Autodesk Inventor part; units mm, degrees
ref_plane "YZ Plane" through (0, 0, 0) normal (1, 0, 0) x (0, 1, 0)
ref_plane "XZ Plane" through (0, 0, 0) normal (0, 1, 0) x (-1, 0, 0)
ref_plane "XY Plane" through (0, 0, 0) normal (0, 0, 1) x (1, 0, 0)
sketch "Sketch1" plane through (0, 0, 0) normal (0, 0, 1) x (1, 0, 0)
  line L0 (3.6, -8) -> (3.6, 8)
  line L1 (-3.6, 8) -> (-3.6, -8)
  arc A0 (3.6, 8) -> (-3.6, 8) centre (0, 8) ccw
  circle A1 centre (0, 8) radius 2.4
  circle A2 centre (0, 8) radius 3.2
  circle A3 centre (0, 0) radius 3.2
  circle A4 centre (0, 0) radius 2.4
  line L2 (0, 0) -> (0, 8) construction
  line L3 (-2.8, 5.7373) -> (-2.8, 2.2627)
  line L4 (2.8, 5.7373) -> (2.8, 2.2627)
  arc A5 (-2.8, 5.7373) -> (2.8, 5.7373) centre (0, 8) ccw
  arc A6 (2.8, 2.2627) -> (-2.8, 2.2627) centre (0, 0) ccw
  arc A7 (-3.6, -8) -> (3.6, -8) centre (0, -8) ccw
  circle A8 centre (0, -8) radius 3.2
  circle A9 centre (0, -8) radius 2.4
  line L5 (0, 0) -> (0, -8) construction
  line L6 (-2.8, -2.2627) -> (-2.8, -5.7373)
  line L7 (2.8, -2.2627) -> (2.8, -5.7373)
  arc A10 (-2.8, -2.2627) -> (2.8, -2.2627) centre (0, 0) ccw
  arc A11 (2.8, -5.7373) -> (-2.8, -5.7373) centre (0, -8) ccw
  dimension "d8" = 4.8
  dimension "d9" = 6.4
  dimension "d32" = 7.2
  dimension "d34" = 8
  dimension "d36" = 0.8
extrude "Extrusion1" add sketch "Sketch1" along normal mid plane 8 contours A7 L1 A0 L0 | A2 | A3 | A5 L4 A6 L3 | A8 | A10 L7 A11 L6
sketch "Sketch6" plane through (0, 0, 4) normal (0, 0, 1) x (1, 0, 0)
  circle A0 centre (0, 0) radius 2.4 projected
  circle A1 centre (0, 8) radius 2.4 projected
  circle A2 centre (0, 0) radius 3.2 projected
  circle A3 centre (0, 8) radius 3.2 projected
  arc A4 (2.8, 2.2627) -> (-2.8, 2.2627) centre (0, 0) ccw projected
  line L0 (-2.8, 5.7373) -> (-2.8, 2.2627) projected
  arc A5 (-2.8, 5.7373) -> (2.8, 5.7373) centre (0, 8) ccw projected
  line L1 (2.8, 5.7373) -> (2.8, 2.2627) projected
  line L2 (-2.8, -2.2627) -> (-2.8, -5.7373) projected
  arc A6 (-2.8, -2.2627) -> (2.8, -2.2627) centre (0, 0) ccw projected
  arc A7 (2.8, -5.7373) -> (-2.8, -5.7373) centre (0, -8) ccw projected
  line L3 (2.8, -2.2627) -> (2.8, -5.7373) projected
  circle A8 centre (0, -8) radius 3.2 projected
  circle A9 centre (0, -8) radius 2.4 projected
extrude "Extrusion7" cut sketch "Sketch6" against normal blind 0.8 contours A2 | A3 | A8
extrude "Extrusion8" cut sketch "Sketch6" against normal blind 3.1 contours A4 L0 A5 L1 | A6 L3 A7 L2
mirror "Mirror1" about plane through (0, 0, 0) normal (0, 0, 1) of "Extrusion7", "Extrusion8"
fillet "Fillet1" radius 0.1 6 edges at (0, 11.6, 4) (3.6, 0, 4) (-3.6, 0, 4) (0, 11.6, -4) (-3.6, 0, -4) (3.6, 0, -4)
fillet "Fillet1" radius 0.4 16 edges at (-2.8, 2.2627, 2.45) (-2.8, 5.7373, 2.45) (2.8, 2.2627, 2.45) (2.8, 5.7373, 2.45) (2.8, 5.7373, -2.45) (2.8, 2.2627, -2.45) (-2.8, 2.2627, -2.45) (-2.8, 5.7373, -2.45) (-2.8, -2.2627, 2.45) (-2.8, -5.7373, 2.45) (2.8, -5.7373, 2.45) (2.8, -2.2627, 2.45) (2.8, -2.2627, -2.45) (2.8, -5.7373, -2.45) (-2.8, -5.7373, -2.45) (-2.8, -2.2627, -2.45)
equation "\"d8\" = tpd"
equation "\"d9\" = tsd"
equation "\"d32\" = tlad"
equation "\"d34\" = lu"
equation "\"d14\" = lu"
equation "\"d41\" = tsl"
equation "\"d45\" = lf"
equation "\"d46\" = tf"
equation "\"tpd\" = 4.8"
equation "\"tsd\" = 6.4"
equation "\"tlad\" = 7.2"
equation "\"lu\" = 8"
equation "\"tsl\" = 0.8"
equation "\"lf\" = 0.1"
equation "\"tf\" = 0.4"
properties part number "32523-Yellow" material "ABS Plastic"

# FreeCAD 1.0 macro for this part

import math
import FreeCAD as App
import Part
import Sketcher

V = App.Vector
Q = App.Units.Quantity


def edges_at(feature, points):
    """Names of the edges that pass closest to the given points."""
    edges = feature.Shape.Edges
    near = lambda p: min(range(len(edges)), key=lambda i: edges[i].distToShape(Part.Vertex(*p))[0])
    return sorted({f"Edge{near(p) + 1}" for p in points})

doc = App.newDocument("Part")
body = doc.addObject("PartDesign::Body", "Body")

# Sketch on XY plane
sketch1 = body.newObject("Sketcher::SketchObject", "Sketch")
sketch1.AttachmentSupport = (doc.getObject("XY_Plane"), [""])
sketch1.MapMode = "FlatFace"
sketch1.addGeometry(Part.ArcOfCircle(Part.Circle(V(0, -8, 0), V(0, 0, 1), 3.6), math.radians(180), math.radians(360)), False)
sketch1.addGeometry(Part.LineSegment(V(3.6, -8, 0), V(3.6, 8, 0)), False)
sketch1.addGeometry(Part.ArcOfCircle(Part.Circle(V(0, 8, 0), V(0, 0, 1), 3.6), math.radians(0), math.radians(180)), False)
sketch1.addGeometry(Part.LineSegment(V(-3.6, 8, 0), V(-3.6, -8, 0)), False)
sketch1.addGeometry(Part.Circle(V(0, -8, 0), V(0, 0, 1), 2.4), False)
sketch1.addGeometry(Part.Circle(V(0, 0, 0), V(0, 0, 1), 2.4), False)
sketch1.addGeometry(Part.Circle(V(0, 8, 0), V(0, 0, 1), 2.4), False)
sketch1.addConstraint(Sketcher.Constraint("Tangent", 0, 2, 1, 1))
sketch1.addConstraint(Sketcher.Constraint("Tangent", 1, 2, 2, 1))
sketch1.addConstraint(Sketcher.Constraint("Tangent", 2, 2, 3, 1))
sketch1.addConstraint(Sketcher.Constraint("Tangent", 3, 2, 0, 1))
sketch1.addConstraint(Sketcher.Constraint("Vertical", 1))
sketch1.addConstraint(Sketcher.Constraint("Vertical", 3))
sketch1.addConstraint(Sketcher.Constraint("Coincident", 5, 3, -1, 1))
sketch1.addConstraint(Sketcher.Constraint("Coincident", 4, 3, 0, 3))
sketch1.addConstraint(Sketcher.Constraint("Coincident", 6, 3, 2, 3))
sketch1.addConstraint(Sketcher.Constraint("Equal", 4, 5))
sketch1.addConstraint(Sketcher.Constraint("Equal", 5, 6))
sketch1.addConstraint(Sketcher.Constraint("Symmetric", 0, 3, 2, 3, -1, 1))
sketch1.addConstraint(Sketcher.Constraint("Diameter", 4, Q("4.8 mm")))
sketch1.addConstraint(Sketcher.Constraint("Radius", 0, Q("3.6 mm")))
sketch1.addConstraint(Sketcher.Constraint("DistanceY", 0, 3, -1, 1, Q("8 mm")))
pad1 = body.newObject("PartDesign::Pad", "Pad")
pad1.Profile = sketch1
pad1.Length = 8
pad1.Midplane = True

# Sketch on XY plane
sketch2 = body.newObject("Sketcher::SketchObject", "Sketch001")
sketch2.AttachmentSupport = (doc.getObject("XY_Plane"), [""])
sketch2.MapMode = "FlatFace"
sketch2.AttachmentOffset = App.Placement(V(0, 0, 4), App.Rotation())
sketch2.addGeometry(Part.Circle(V(0, 0, 0), V(0, 0, 1), 3.2), False)
sketch2.addGeometry(Part.Circle(V(0, 0, 0), V(0, 0, 1), 2.4), False)
sketch2.addGeometry(Part.Circle(V(0, 8, 0), V(0, 0, 1), 3.2), False)
sketch2.addGeometry(Part.Circle(V(0, 8, 0), V(0, 0, 1), 2.4), False)
sketch2.addGeometry(Part.Circle(V(0, -8, 0), V(0, 0, 1), 3.2), False)
sketch2.addGeometry(Part.Circle(V(0, -8, 0), V(0, 0, 1), 2.4), False)
sketch2.addConstraint(Sketcher.Constraint("Coincident", 0, 3, -1, 1))
sketch2.addConstraint(Sketcher.Constraint("Coincident", 1, 3, -1, 1))
sketch2.addConstraint(Sketcher.Constraint("Coincident", 3, 3, 2, 3))
sketch2.addConstraint(Sketcher.Constraint("Coincident", 5, 3, 4, 3))
sketch2.addConstraint(Sketcher.Constraint("Equal", 0, 2))
sketch2.addConstraint(Sketcher.Constraint("Equal", 1, 3))
sketch2.addConstraint(Sketcher.Constraint("Equal", 2, 4))
sketch2.addConstraint(Sketcher.Constraint("Equal", 3, 5))
sketch2.addConstraint(Sketcher.Constraint("Symmetric", 2, 3, 4, 3, -1, 1))
sketch2.addConstraint(Sketcher.Constraint("PointOnObject", 2, 3, -2))
sketch2.addConstraint(Sketcher.Constraint("Diameter", 0, Q("6.4 mm")))
sketch2.addConstraint(Sketcher.Constraint("Diameter", 1, Q("4.8 mm")))
sketch2.addConstraint(Sketcher.Constraint("DistanceY", -1, 1, 2, 3, Q("8 mm")))
pocket1 = body.newObject("PartDesign::Pocket", "Pocket")
pocket1.Profile = sketch2
pocket1.Length = 0.8

# Sketch on XY plane
sketch3 = body.newObject("Sketcher::SketchObject", "Sketch002")
sketch3.AttachmentSupport = (doc.getObject("XY_Plane"), [""])
sketch3.MapMode = "FlatFace"
sketch3.AttachmentOffset = App.Placement(V(0, 0, 4), App.Rotation())
sketch3.addGeometry(Part.ArcOfCircle(Part.Circle(V(0, 0, 0), V(0, 0, 1), 3.6), math.radians(39), math.radians(141)), False)
sketch3.addGeometry(Part.LineSegment(V(2.8, 2.3, 0), V(2.8, 5.7, 0)), False)
sketch3.addGeometry(Part.ArcOfCircle(Part.Circle(V(0, 8, 0), V(0, 0, 1), 3.6), math.radians(-141), math.radians(-39)), False)
sketch3.addGeometry(Part.LineSegment(V(-2.8, 5.7, 0), V(-2.8, 2.3, 0)), False)
sketch3.addGeometry(Part.ArcOfCircle(Part.Circle(V(0, 0, 0), V(0, 0, 1), 3.6), math.radians(-141), math.radians(-39)), False)
sketch3.addGeometry(Part.LineSegment(V(-2.8, -2.3, 0), V(-2.8, -5.7, 0)), False)
sketch3.addGeometry(Part.ArcOfCircle(Part.Circle(V(0, -8, 0), V(0, 0, 1), 3.6), math.radians(39), math.radians(141)), False)
sketch3.addGeometry(Part.LineSegment(V(2.8, -5.7, 0), V(2.8, -2.3, 0)), False)
sketch3.addConstraint(Sketcher.Constraint("Coincident", 0, 1, 1, 1))
sketch3.addConstraint(Sketcher.Constraint("Coincident", 1, 2, 2, 2))
sketch3.addConstraint(Sketcher.Constraint("Coincident", 2, 1, 3, 1))
sketch3.addConstraint(Sketcher.Constraint("Coincident", 3, 2, 0, 2))
sketch3.addConstraint(Sketcher.Constraint("Coincident", 4, 1, 5, 1))
sketch3.addConstraint(Sketcher.Constraint("Coincident", 5, 2, 6, 2))
sketch3.addConstraint(Sketcher.Constraint("Coincident", 6, 1, 7, 1))
sketch3.addConstraint(Sketcher.Constraint("Coincident", 7, 2, 4, 2))
sketch3.addConstraint(Sketcher.Constraint("Vertical", 1))
sketch3.addConstraint(Sketcher.Constraint("Vertical", 3))
sketch3.addConstraint(Sketcher.Constraint("Vertical", 5))
sketch3.addConstraint(Sketcher.Constraint("Vertical", 7))
sketch3.addConstraint(Sketcher.Constraint("Coincident", 0, 3, -1, 1))
sketch3.addConstraint(Sketcher.Constraint("Coincident", 4, 3, -1, 1))
sketch3.addConstraint(Sketcher.Constraint("Equal", 0, 2))
sketch3.addConstraint(Sketcher.Constraint("Equal", 2, 4))
sketch3.addConstraint(Sketcher.Constraint("Equal", 4, 6))
sketch3.addConstraint(Sketcher.Constraint("Symmetric", 2, 3, 6, 3, -1, 1))
sketch3.addConstraint(Sketcher.Constraint("Symmetric", 1, 2, 2, 1, -2))
sketch3.addConstraint(Sketcher.Constraint("Horizontal", 5, 2, 6, 1))
sketch3.addConstraint(Sketcher.Constraint("Vertical", 3, 2, 4, 1))
sketch3.addConstraint(Sketcher.Constraint("Radius", 0, Q("3.6 mm")))
sketch3.addConstraint(Sketcher.Constraint("DistanceY", -1, 1, 2, 3, Q("8 mm")))
sketch3.addConstraint(Sketcher.Constraint("DistanceX", -1, 1, 0, 1, Q("2.8 mm")))
pocket2 = body.newObject("PartDesign::Pocket", "Pocket001")
pocket2.Profile = sketch3
pocket2.Length = 3.1
doc.recompute()

mirrored = body.newObject("PartDesign::Mirrored", "Mirrored")
mirrored.Originals = [pocket1, pocket2]
mirrored.MirrorPlane = (doc.getObject("XY_Plane"), [""])
body.Tip = mirrored
doc.recompute()

fillet = body.newObject("PartDesign::Fillet", "Fillet")
fillet.Base = (mirrored, edges_at(mirrored, [
    (0, 11.6, 4),
    (3.6, 0, 4),
    (-3.6, 0, 4),
    (0, 11.6, -4),
    (-3.6, 0, -4),
    (3.6, 0, -4),
]))
fillet.Radius = 0.1
doc.recompute()

fillet2 = body.newObject("PartDesign::Fillet", "Fillet001")
fillet2.Base = (fillet, edges_at(fillet, [
    (-2.8, 2.263, 2.45),
    (-2.8, 5.737, 2.45),
    (2.8, 2.263, 2.45),
    (2.8, 5.737, 2.45),
    (2.8, 5.737, -2.45),
    (2.8, 2.263, -2.45),
    (-2.8, 2.263, -2.45),
    (-2.8, 5.737, -2.45),
    (-2.8, -2.263, 2.45),
    (-2.8, -5.737, 2.45),
    (2.8, -5.737, 2.45),
    (2.8, -2.263, 2.45),
    (2.8, -2.263, -2.45),
    (2.8, -5.737, -2.45),
    (-2.8, -5.737, -2.45),
    (-2.8, -2.263, -2.45),
]))
fillet2.Radius = 0.4

doc.recompute()
